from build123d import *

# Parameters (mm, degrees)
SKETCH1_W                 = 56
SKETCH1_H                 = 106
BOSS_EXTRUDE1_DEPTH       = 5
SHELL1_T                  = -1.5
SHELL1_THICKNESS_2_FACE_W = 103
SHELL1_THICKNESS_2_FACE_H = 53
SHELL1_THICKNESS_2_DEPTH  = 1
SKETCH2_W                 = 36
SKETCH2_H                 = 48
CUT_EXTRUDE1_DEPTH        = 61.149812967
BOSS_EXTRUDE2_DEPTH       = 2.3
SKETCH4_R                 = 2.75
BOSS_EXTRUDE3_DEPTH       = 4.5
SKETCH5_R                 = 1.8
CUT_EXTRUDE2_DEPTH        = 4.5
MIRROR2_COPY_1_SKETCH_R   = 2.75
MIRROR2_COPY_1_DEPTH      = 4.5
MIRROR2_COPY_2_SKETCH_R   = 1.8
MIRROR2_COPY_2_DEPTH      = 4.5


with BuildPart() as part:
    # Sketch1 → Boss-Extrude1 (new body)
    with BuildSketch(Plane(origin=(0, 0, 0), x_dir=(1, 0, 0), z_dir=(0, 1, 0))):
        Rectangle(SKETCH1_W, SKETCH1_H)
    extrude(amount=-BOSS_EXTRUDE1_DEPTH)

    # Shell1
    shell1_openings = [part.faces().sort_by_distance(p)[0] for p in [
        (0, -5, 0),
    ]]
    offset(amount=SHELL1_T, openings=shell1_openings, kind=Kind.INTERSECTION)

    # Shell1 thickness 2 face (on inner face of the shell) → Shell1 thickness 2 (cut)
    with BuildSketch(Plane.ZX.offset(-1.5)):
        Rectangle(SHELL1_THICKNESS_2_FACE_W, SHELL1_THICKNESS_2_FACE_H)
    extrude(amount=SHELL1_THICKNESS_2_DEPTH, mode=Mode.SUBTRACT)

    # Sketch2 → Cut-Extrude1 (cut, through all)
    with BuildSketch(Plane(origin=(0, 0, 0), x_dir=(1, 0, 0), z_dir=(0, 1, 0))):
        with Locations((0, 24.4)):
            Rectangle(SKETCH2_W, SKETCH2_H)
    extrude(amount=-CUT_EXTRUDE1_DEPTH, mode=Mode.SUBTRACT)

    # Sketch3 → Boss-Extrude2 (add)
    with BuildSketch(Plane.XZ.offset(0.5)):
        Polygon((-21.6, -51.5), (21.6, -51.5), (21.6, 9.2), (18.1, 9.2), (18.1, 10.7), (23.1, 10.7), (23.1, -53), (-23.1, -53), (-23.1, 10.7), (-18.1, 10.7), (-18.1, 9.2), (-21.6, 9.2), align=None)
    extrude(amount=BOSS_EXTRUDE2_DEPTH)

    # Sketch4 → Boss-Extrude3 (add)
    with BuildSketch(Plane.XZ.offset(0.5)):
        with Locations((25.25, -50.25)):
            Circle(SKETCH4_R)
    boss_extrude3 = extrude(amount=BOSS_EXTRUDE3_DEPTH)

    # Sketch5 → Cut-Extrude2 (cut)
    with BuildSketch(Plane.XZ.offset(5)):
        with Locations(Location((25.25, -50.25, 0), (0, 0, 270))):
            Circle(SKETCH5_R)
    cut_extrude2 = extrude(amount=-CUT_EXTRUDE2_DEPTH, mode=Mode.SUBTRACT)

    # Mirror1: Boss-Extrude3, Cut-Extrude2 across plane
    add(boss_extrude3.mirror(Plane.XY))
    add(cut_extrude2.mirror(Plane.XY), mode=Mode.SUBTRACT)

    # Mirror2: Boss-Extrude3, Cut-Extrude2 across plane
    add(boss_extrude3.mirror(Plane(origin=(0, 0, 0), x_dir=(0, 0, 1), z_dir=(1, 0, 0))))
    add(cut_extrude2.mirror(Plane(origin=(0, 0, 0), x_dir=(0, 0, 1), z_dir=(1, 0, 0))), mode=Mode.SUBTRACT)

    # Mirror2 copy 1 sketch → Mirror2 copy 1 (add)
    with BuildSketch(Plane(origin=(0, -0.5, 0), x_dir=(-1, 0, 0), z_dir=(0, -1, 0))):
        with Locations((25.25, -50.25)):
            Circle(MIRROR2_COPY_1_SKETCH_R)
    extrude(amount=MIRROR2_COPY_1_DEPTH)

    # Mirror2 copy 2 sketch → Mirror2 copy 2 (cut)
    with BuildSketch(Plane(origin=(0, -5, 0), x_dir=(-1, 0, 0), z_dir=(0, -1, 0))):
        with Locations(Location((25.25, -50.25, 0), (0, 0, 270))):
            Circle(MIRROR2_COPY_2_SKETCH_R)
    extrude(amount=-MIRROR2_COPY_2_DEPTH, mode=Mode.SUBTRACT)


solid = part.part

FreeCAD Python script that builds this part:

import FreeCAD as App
import Part
import Sketcher
from FreeCAD import Vector
Q = App.Units.Quantity


def faces_at(feature, points):
    """Names of the faces that lie closest to the given points."""
    faces = feature.Shape.Faces
    near = lambda p: min(range(len(faces)), key=lambda i: faces[i].distToShape(Part.Vertex(*p))[0])
    return sorted({f"Face{near(p) + 1}" for p in points})


def add_polygon(sketch, points):
    """Adds a closed chain of lines whose ends are joined by coincident constraints."""
    first, n = sketch.GeometryCount, len(points)
    for a, b in zip(points, points[1:] + points[:1]):
        sketch.addGeometry(Part.LineSegment(App.Vector(*a, 0), App.Vector(*b, 0)), False)
    for i in range(n):
        sketch.addConstraint(Sketcher.Constraint("Coincident", first + i, 2, first + (i + 1) % n, 1))

doc = App.newDocument("Part")
body = doc.addObject("PartDesign::Body", "Body")

# Sketch on XZ plane
sketch1 = body.newObject("Sketcher::SketchObject", "Sketch")
sketch1.AttachmentSupport = (doc.getObject("XZ_Plane"), [""])
sketch1.MapMode = "FlatFace"
add_polygon(sketch1, [(-28, -53), (-28, 53), (28, 53), (28, -53)])  # lines 0-3
sketch1.addConstraint(Sketcher.Constraint("Vertical", 0))
sketch1.addConstraint(Sketcher.Constraint("Horizontal", 1))
sketch1.addConstraint(Sketcher.Constraint("Vertical", 2))
sketch1.addConstraint(Sketcher.Constraint("Horizontal", 3))
sketch1.addConstraint(Sketcher.Constraint("Symmetric", 0, 2, 2, 2, -1, 1))
sketch1.addConstraint(Sketcher.Constraint("DistanceX", 1, 1, 1, 2, Q("56 mm")))
sketch1.addConstraint(Sketcher.Constraint("DistanceY", 0, 1, 0, 2, Q("106 mm")))
pad1 = body.newObject("PartDesign::Pad", "Pad")
pad1.Profile = sketch1
pad1.Length = 5
doc.recompute()

thickness = body.newObject("PartDesign::Thickness", "Thickness")
thickness.Base = (pad1, faces_at(pad1, [(0, -5, 0)]))
thickness.Value = 1.5
thickness.Reversed = True
thickness.Join = "Intersection"

# Sketch on XZ plane
sketch2 = body.newObject("Sketcher::SketchObject", "Sketch001")
sketch2.AttachmentSupport = (doc.getObject("XZ_Plane"), [""])
sketch2.MapMode = "FlatFace"
sketch2.AttachmentOffset = App.Placement(Vector(0, 0, 1.5), App.Rotation())
add_polygon(sketch2, [(26, -52), (-26, -52), (-26, 52), (26, 52)])  # lines 0-3
sketch2.addConstraint(Sketcher.Constraint("Horizontal", 0))
sketch2.addConstraint(Sketcher.Constraint("Vertical", 1))
sketch2.addConstraint(Sketcher.Constraint("Horizontal", 2))
sketch2.addConstraint(Sketcher.Constraint("Vertical", 3))
sketch2.addConstraint(Sketcher.Constraint("Symmetric", 0, 2, 2, 2, -1, 1))
sketch2.addConstraint(Sketcher.Constraint("DistanceX", 0, 2, 0, 1, Q("53 mm")))
sketch2.addConstraint(Sketcher.Constraint("DistanceY", 1, 1, 1, 2, Q("103 mm")))
pocket1 = body.newObject("PartDesign::Pocket", "Pocket")
pocket1.Profile = sketch2
pocket1.Length = 1

# Sketch on XZ plane
sketch3 = body.newObject("Sketcher::SketchObject", "Sketch002")
sketch3.AttachmentSupport = (doc.getObject("XZ_Plane"), [""])
sketch3.MapMode = "FlatFace"
add_polygon(sketch3, [(-18, -48), (-18, 0), (18, 0), (18, -48)])  # lines 0-3
sketch3.addConstraint(Sketcher.Constraint("Vertical", 0))
sketch3.addConstraint(Sketcher.Constraint("Horizontal", 1))
sketch3.addConstraint(Sketcher.Constraint("Vertical", 2))
sketch3.addConstraint(Sketcher.Constraint("Horizontal", 3))
sketch3.addConstraint(Sketcher.Constraint("DistanceX", 1, 1, 1, 2, Q("36 mm")))
sketch3.addConstraint(Sketcher.Constraint("DistanceY", 0, 1, 0, 2, Q("48 mm")))
sketch3.addConstraint(Sketcher.Constraint("DistanceX", 0, 2, -1, 1, Q("18 mm")))
sketch3.addConstraint(Sketcher.Constraint("DistanceY", 0, 2, -1, 1, Q("0.4 mm")))
pocket2 = body.newObject("PartDesign::Pocket", "Pocket001")
pocket2.Profile = sketch3
pocket2.Type = "ThroughAll"
pocket2.Reversed = True

# Sketch on XZ plane
sketch4 = body.newObject("Sketcher::SketchObject", "Sketch003")
sketch4.AttachmentSupport = (doc.getObject("XZ_Plane"), [""])
sketch4.MapMode = "FlatFace"
sketch4.AttachmentOffset = App.Placement(Vector(0, 0, 0.5), App.Rotation())
add_polygon(sketch4, [(21.6, -51.5), (-21.6, -51.5), (-21.6, 9.2), (-18.1, 9.2), (-18.1, 10.7), (-23.1, 10.7), (-23.1, -53), (23.1, -53), (23.1, 10.7), (18.1, 10.7), (18.1, 9.2), (21.6, 9.2)])  # lines 0-11
sketch4.addConstraint(Sketcher.Constraint("Horizontal", 0))
sketch4.addConstraint(Sketcher.Constraint("Vertical", 1))
sketch4.addConstraint(Sketcher.Constraint("Horizontal", 2))
sketch4.addConstraint(Sketcher.Constraint("Vertical", 3))
sketch4.addConstraint(Sketcher.Constraint("Horizontal", 4))
sketch4.addConstraint(Sketcher.Constraint("Vertical", 5))
sketch4.addConstraint(Sketcher.Constraint("Horizontal", 6))
sketch4.addConstraint(Sketcher.Constraint("Vertical", 7))
sketch4.addConstraint(Sketcher.Constraint("Horizontal", 8))
sketch4.addConstraint(Sketcher.Constraint("Vertical", 9))
sketch4.addConstraint(Sketcher.Constraint("Horizontal", 10))
sketch4.addConstraint(Sketcher.Constraint("Vertical", 11))
sketch4.addConstraint(Sketcher.Constraint("Symmetric", 4, 2, 7, 2, -2))
sketch4.addConstraint(Sketcher.Constraint("Symmetric", 2, 2, 9, 2, -2))
sketch4.addConstraint(Sketcher.Constraint("Equal", 2, 10))
sketch4.addConstraint(Sketcher.Constraint("DistanceX", 4, 2, 4, 1, Q("5 mm")))
sketch4.addConstraint(Sketcher.Constraint("DistanceX", 0, 2, 0, 1, Q("43.2 mm")))
sketch4.addConstraint(Sketcher.Constraint("DistanceX", 2, 1, 2, 2, Q("3.5 mm")))
sketch4.addConstraint(Sketcher.Constraint("DistanceY", 1, 1, 1, 2, Q("60.7 mm")))
sketch4.addConstraint(Sketcher.Constraint("DistanceY", 3, 1, 3, 2, Q("1.5 mm")))
sketch4.addConstraint(Sketcher.Constraint("DistanceY", 5, 2, 5, 1, Q("63.7 mm")))
sketch4.addConstraint(Sketcher.Constraint("DistanceY", 5, 2, -1, 1, Q("53 mm")))
pad2 = body.newObject("PartDesign::Pad", "Pad001")
pad2.Profile = sketch4
pad2.Length = 2.3

# Sketch on XZ plane
sketch5 = body.newObject("Sketcher::SketchObject", "Sketch004")
sketch5.AttachmentSupport = (doc.getObject("XZ_Plane"), [""])
sketch5.MapMode = "FlatFace"
sketch5.AttachmentOffset = App.Placement(Vector(0, 0, 0.5), App.Rotation())
sketch5.addGeometry(Part.Circle(Vector(25.2, -50.2, 0), Vector(0, 0, 1), 2.8), False)
sketch5.addConstraint(Sketcher.Constraint("Diameter", 0, Q("5.5 mm")))
sketch5.addConstraint(Sketcher.Constraint("DistanceX", -1, 1, 0, 3, Q("25.25 mm")))
sketch5.addConstraint(Sketcher.Constraint("DistanceY", 0, 3, -1, 1, Q("50.25 mm")))
pad3 = body.newObject("PartDesign::Pad", "Pad002")
pad3.Profile = sketch5
pad3.Length = 4.5

# Sketch on XZ plane
sketch6 = body.newObject("Sketcher::SketchObject", "Sketch005")
sketch6.AttachmentSupport = (doc.getObject("XZ_Plane"), [""])
sketch6.MapMode = "FlatFace"
sketch6.AttachmentOffset = App.Placement(Vector(0, 0, 5), App.Rotation())
sketch6.addGeometry(Part.Circle(Vector(25.2, -50.2, 0), Vector(0, 0, 1), 1.8), False)
sketch6.addConstraint(Sketcher.Constraint("Diameter", 0, Q("3.6 mm")))
sketch6.addConstraint(Sketcher.Constraint("DistanceX", -1, 1, 0, 3, Q("25.25 mm")))
sketch6.addConstraint(Sketcher.Constraint("DistanceY", 0, 3, -1, 1, Q("50.25 mm")))
pocket3 = body.newObject("PartDesign::Pocket", "Pocket002")
pocket3.Profile = sketch6
pocket3.Length = 4.5
doc.recompute()

mirrored = body.newObject("PartDesign::Mirrored", "Mirrored")
mirrored.Originals = [pad3, pocket3]
mirrored.MirrorPlane = (doc.getObject("XY_Plane"), [""])
body.Tip = mirrored
doc.recompute()

mirrored2 = body.newObject("PartDesign::Mirrored", "Mirrored001")
mirrored2.Originals = [pad3, pocket3]
mirrored2.MirrorPlane = (doc.getObject("YZ_Plane"), [""])
body.Tip = mirrored2

# Sketch on XZ plane
sketch7 = body.newObject("Sketcher::SketchObject", "Sketch006")
sketch7.AttachmentSupport = (doc.getObject("XZ_Plane"), [""])
sketch7.MapMode = "FlatFace"
sketch7.AttachmentOffset = App.Placement(Vector(0, 0, 0.5), App.Rotation())
sketch7.addGeometry(Part.Circle(Vector(-25.2, 50.2, 0), Vector(0, 0, 1), 2.8), False)
sketch7.addConstraint(Sketcher.Constraint("Diameter", 0, Q("5.5 mm")))
sketch7.addConstraint(Sketcher.Constraint("DistanceX", 0, 3, -1, 1, Q("25.25 mm")))
sketch7.addConstraint(Sketcher.Constraint("DistanceY", -1, 1, 0, 3, Q("50.25 mm")))
pad4 = body.newObject("PartDesign::Pad", "Pad003")
pad4.Profile = sketch7
pad4.Length = 4.5

# Sketch on XZ plane
sketch8 = body.newObject("Sketcher::SketchObject", "Sketch007")
sketch8.AttachmentSupport = (doc.getObject("XZ_Plane"), [""])
sketch8.MapMode = "FlatFace"
sketch8.AttachmentOffset = App.Placement(Vector(0, 0, 5), App.Rotation())
sketch8.addGeometry(Part.Circle(Vector(-25.2, 50.2, 0), Vector(0, 0, 1), 1.8), False)
sketch8.addConstraint(Sketcher.Constraint("Diameter", 0, Q("3.6 mm")))
sketch8.addConstraint(Sketcher.Constraint("DistanceX", 0, 3, -1, 1, Q("25.25 mm")))
sketch8.addConstraint(Sketcher.Constraint("DistanceY", -1, 1, 0, 3, Q("50.25 mm")))
pocket4 = body.newObject("PartDesign::Pocket", "Pocket003")
pocket4.Profile = sketch8
pocket4.Length = 4.5

doc.recompute()
